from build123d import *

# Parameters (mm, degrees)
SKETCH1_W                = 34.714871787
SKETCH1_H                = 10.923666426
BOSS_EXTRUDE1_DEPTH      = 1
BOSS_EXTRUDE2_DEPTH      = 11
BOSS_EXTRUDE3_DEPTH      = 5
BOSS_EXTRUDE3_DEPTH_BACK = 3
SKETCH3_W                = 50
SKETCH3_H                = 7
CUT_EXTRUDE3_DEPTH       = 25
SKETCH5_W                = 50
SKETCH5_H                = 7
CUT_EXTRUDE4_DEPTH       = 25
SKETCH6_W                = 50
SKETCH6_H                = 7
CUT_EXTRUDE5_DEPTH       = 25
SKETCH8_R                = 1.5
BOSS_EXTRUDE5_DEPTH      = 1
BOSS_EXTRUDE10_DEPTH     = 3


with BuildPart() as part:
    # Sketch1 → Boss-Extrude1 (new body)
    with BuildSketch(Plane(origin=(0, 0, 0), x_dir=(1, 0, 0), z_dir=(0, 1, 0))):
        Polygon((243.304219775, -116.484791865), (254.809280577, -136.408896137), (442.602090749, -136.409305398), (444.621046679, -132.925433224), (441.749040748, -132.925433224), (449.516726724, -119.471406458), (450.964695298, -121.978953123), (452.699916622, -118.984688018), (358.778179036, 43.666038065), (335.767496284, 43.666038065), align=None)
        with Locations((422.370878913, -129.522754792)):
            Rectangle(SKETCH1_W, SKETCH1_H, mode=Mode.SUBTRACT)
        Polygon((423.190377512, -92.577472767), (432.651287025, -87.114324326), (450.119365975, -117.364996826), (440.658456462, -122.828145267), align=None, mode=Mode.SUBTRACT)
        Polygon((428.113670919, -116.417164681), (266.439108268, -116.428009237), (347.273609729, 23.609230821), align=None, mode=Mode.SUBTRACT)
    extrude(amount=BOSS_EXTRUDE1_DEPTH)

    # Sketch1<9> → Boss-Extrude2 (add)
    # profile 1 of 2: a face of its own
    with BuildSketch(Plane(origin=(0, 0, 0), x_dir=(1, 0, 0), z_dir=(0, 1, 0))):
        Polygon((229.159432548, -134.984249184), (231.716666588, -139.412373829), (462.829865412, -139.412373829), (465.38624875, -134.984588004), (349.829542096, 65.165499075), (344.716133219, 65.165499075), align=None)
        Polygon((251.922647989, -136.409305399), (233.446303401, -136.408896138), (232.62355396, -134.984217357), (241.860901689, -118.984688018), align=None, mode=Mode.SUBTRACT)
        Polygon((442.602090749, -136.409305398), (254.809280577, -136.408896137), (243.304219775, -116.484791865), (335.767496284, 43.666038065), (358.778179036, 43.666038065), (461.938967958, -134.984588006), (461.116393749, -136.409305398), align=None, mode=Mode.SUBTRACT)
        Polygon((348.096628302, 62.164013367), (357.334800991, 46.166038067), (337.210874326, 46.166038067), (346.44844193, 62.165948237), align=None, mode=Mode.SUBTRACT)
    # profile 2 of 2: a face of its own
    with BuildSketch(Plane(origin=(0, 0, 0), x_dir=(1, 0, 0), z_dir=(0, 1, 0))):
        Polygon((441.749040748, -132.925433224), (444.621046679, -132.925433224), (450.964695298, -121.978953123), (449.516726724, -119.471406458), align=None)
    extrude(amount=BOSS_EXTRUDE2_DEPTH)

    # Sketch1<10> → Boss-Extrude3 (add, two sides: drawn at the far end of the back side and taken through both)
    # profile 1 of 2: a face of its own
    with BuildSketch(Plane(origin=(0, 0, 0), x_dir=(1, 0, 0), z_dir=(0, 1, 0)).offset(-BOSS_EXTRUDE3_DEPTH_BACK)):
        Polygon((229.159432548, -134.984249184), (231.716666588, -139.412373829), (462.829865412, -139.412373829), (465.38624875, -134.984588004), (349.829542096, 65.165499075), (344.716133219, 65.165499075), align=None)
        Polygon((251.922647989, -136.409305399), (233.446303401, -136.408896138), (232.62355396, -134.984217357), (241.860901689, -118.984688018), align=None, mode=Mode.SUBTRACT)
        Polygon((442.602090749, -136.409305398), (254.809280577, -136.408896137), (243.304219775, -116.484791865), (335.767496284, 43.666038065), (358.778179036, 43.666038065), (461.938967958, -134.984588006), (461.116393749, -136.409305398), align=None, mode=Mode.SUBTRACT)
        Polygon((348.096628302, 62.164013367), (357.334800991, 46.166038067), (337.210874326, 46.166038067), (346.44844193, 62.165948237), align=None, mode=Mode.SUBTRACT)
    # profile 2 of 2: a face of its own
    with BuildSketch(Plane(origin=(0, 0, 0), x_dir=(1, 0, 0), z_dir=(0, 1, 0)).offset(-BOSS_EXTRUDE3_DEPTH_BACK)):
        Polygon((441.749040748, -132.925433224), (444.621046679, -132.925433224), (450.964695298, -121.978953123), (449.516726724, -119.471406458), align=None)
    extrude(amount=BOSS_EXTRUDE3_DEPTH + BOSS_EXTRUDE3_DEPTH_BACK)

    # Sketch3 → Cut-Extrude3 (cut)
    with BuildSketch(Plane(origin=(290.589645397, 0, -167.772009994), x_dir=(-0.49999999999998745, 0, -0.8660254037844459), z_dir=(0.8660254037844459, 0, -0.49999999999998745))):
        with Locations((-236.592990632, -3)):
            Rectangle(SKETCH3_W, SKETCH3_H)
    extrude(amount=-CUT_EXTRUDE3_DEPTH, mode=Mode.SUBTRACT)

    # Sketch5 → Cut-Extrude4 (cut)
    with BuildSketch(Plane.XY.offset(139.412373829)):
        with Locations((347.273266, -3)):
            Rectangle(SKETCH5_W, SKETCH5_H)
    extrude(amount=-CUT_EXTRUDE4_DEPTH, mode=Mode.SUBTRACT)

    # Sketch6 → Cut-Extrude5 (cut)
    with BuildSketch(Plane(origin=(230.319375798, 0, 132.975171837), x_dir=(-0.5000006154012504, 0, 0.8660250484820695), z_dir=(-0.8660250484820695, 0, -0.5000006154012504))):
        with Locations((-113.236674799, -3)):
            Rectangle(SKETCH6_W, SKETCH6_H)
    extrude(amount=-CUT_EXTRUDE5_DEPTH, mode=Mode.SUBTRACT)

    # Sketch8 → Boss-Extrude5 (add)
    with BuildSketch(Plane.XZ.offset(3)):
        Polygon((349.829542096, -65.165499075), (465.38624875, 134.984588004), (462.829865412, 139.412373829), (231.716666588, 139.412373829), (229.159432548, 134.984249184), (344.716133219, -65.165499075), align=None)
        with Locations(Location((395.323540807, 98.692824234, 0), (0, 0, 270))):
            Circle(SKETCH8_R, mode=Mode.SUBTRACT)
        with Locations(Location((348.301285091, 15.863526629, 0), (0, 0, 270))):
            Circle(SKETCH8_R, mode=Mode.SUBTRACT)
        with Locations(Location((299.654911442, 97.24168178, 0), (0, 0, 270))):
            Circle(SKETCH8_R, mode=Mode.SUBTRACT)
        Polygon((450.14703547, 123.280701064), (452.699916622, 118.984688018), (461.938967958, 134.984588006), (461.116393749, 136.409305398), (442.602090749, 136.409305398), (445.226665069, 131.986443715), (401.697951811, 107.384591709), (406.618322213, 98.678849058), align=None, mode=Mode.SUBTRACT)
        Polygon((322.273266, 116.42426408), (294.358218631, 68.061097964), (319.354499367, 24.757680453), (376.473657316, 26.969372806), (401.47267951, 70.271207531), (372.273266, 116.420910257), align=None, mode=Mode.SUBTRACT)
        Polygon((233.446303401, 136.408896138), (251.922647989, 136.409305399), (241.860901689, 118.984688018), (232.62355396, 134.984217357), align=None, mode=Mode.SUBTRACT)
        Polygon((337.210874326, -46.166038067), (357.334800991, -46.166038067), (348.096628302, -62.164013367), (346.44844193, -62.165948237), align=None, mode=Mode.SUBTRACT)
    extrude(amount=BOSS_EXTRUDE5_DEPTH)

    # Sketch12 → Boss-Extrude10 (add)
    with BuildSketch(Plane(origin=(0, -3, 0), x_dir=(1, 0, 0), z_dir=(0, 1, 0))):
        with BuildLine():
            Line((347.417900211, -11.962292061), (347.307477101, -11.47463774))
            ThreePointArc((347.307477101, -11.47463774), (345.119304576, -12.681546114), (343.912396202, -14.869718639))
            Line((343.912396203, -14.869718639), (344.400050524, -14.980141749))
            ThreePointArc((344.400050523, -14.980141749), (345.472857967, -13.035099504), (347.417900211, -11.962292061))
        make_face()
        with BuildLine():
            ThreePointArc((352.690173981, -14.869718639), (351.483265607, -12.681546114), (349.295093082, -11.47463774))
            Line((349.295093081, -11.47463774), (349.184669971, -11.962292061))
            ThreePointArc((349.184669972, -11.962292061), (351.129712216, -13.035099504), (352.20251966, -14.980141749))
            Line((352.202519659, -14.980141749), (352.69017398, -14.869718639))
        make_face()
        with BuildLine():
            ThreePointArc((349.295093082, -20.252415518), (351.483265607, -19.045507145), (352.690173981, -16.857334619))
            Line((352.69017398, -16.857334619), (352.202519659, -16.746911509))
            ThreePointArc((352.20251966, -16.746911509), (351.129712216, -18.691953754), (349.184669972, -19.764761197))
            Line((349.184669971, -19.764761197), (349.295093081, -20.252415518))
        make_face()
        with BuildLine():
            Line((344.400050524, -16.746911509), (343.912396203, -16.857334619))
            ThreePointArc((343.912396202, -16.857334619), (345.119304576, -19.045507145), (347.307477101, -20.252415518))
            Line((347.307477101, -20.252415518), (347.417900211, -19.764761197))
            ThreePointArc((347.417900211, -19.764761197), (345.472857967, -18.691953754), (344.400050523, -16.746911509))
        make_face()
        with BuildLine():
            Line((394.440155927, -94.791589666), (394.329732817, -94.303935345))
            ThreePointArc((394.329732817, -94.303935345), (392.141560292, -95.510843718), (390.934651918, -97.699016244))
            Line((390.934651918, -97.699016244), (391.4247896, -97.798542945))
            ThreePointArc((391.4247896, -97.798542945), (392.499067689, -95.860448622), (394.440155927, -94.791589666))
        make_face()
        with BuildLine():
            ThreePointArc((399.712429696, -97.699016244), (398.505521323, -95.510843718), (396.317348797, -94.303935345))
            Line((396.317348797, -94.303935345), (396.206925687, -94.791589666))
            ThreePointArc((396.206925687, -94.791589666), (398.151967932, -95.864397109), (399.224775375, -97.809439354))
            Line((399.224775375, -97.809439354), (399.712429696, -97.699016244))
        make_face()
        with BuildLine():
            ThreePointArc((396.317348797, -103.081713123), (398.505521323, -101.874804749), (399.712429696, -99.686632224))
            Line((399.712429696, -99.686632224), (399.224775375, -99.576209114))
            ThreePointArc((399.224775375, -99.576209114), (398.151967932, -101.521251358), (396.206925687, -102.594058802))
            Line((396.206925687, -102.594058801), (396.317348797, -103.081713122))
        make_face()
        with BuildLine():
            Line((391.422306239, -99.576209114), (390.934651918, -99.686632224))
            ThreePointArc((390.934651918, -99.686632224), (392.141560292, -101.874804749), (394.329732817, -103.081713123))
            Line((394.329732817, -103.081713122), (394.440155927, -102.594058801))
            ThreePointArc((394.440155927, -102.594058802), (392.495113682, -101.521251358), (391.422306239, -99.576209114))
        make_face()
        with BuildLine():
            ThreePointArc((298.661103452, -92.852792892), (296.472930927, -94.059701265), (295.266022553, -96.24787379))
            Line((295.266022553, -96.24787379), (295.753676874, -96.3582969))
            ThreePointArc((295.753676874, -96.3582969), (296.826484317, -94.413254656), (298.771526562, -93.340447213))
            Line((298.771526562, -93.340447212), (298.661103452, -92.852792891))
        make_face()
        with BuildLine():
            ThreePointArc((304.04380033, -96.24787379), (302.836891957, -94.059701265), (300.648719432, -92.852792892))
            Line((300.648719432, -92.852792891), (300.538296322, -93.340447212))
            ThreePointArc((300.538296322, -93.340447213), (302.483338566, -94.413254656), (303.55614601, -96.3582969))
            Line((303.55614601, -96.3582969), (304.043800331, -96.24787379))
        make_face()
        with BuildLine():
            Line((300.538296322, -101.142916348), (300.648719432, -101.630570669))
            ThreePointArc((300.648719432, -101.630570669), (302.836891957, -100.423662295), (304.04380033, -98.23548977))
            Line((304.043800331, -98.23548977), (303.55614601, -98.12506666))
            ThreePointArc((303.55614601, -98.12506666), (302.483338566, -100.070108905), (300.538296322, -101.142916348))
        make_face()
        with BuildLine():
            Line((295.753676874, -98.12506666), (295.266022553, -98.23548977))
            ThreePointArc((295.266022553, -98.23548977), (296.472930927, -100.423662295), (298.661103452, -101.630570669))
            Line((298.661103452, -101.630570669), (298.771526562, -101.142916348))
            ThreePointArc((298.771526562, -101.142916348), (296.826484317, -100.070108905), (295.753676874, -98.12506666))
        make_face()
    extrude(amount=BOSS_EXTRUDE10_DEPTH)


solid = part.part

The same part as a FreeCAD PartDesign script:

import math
import FreeCAD as App
import Part
import Sketcher

V = App.Vector


def add_polygon(sketch, points):
    """Adds a closed chain of lines whose ends are joined by coincident constraints."""
    first, n = sketch.GeometryCount, len(points)
    for a, b in zip(points, points[1:] + points[:1]):
        sketch.addGeometry(Part.LineSegment(App.Vector(*a, 0), App.Vector(*b, 0)), False)
    for i in range(n):
        sketch.addConstraint(Sketcher.Constraint("Coincident", first + i, 2, first + (i + 1) % n, 1))

doc = App.newDocument("Part")
body = doc.addObject("PartDesign::Body", "Body")

sketch1 = body.newObject("Sketcher::SketchObject", "Sketch")
sketch1.AttachmentSupport = (doc.getObject("XZ_Plane"), [""])
sketch1.MapMode = "FlatFace"
add_polygon(sketch1, [(243.30422, 116.484792), (254.809281, 136.408896), (442.602091, 136.409305), (444.621047, 132.925433), (441.749041, 132.925433), (449.516727, 119.471406), (450.964695, 121.978953), (452.699917, 118.984688), (358.778179, -43.666038), (335.767496, -43.666038)])
add_polygon(sketch1, [(439.728315, 134.984588), (405.013443, 134.984588), (405.013443, 124.060922), (439.728315, 124.060922)])
add_polygon(sketch1, [(440.658456, 122.828145), (423.190378, 92.577473), (432.651287, 87.114324), (450.119366, 117.364997)])
add_polygon(sketch1, [(347.27361, -23.609231), (428.113671, 116.417165), (266.439108, 116.428009)])
sketch1.addConstraint(Sketcher.Constraint("Horizontal", 3))
sketch1.addConstraint(Sketcher.Constraint("Horizontal", 8))
sketch1.addConstraint(Sketcher.Constraint("Horizontal", 10))
sketch1.addConstraint(Sketcher.Constraint("Vertical", 11))
sketch1.addConstraint(Sketcher.Constraint("Horizontal", 12))
sketch1.addConstraint(Sketcher.Constraint("Vertical", 13))
sketch1.addConstraint(Sketcher.Constraint("DistanceX", 10, 2, 10, 1, 34.714872))
sketch1.addConstraint(Sketcher.Constraint("DistanceY", 4, 2, 1, 2, 16.937899))
sketch1.addConstraint(Sketcher.Constraint("DistanceX", 8, 2, 5, 2, 115.197199))
sketch1.addConstraint(Sketcher.Constraint("Distance", 0, 23.007311))
sketch1.addConstraint(Sketcher.Constraint("Distance", 1, 187.79281))
sketch1.addConstraint(Sketcher.Constraint("Distance", 4, 15.535372))
sketch1.addConstraint(Sketcher.Constraint("Distance", 7, 187.82053))
sketch1.addConstraint(Sketcher.Constraint("Distance", 14, 34.93189))
sketch1.addConstraint(Sketcher.Constraint("Distance", 16, 34.93189))
sketch1.addConstraint(Sketcher.Constraint("Distance", 20, 161.693059))
sketch1.addConstraint(Sketcher.Constraint("DistanceX", 3, 2, 3, 1, 2.872006))
sketch1.addConstraint(Sketcher.Constraint("DistanceX", 8, 2, 8, 1, 23.010683))
sketch1.addConstraint(Sketcher.Constraint("DistanceY", 11, 2, 11, 1, 10.923666))
sketch1.addConstraint(Sketcher.Constraint("DistanceX", -1, 1, 0, 2, 254.809281))
sketch1.addConstraint(Sketcher.Constraint("DistanceX", -1, 1, 3, 2, 441.749041))
sketch1.addConstraint(Sketcher.Constraint("DistanceY", -1, 1, 6, 2, 118.984688))
sketch1.addConstraint(Sketcher.Constraint("DistanceX", -1, 1, 7, 2, 358.778179))
sketch1.addConstraint(Sketcher.Constraint("DistanceY", 7, 2, -1, 1, 43.666038))
sketch1.addConstraint(Sketcher.Constraint("DistanceX", -1, 1, 9, 2, 243.30422))
sketch1.addConstraint(Sketcher.Constraint("DistanceY", -1, 1, 9, 2, 116.484792))
sketch1.addConstraint(Sketcher.Constraint("DistanceY", -1, 1, 10, 2, 134.984588))
sketch1.addConstraint(Sketcher.Constraint("DistanceX", -1, 1, 18, 2, 428.113671))
sketch1.addConstraint(Sketcher.Constraint("DistanceX", -1, 1, 19, 2, 266.439108))
sketch1.addConstraint(Sketcher.Constraint("DistanceY", -1, 1, 19, 2, 116.428009))
sketch1.addConstraint(Sketcher.Constraint("DistanceX", -1, 1, 20, 2, 347.27361))
sketch1.addConstraint(Sketcher.Constraint("DistanceY", 0, 2, 1, 2, 0.000409))
sketch1.addConstraint(Sketcher.Constraint("DistanceX", 2, 2, 4, 2, 4.89568))
sketch1.addConstraint(Sketcher.Constraint("DistanceY", 5, 2, 2, 2, 10.94648))
sketch1.addConstraint(Sketcher.Constraint("DistanceX", 12, 2, 2, 2, 4.892732))
sketch1.addConstraint(Sketcher.Constraint("DistanceY", 14, 2, 12, 2, 31.483449))
sketch1.addConstraint(Sketcher.Constraint("DistanceX", 14, 2, 4, 2, 26.326349))
sketch1.addConstraint(Sketcher.Constraint("DistanceX", 14, 2, 15, 2, 9.46091))
sketch1.addConstraint(Sketcher.Constraint("DistanceY", 15, 2, 14, 2, 5.463148))
sketch1.addConstraint(Sketcher.Constraint("DistanceX", 4, 2, 16, 2, 0.602639))
sketch1.addConstraint(Sketcher.Constraint("DistanceX", 12, 2, 17, 2, 0.930142))
sketch1.addConstraint(Sketcher.Constraint("DistanceY", 18, 2, 17, 2, 6.410981))
pad1 = body.newObject("PartDesign::Pad", "Pad")
pad1.Profile = sketch1
pad1.Length = 1
pad1.Reversed = True

sketch2 = body.newObject("Sketcher::SketchObject", "Sketch001")
sketch2.AttachmentSupport = (doc.getObject("XZ_Plane"), [""])
sketch2.MapMode = "FlatFace"
add_polygon(sketch2, [(229.159433, 134.984249), (231.716667, 139.412374), (462.829865, 139.412374), (465.386249, 134.984588), (349.829542, -65.165499), (344.716133, -65.165499)])
add_polygon(sketch2, [(241.860902, 118.984688), (251.922648, 136.409305), (233.446303, 136.408896), (232.623554, 134.984217)])
add_polygon(sketch2, [(461.116394, 136.409305), (442.602091, 136.409305), (254.809281, 136.408896), (243.30422, 116.484792), (335.767496, -43.666038), (358.778179, -43.666038), (461.938968, 134.984588)])
add_polygon(sketch2, [(346.448442, -62.165948), (348.096628, -62.164013), (357.334801, -46.166038), (337.210874, -46.166038)])
add_polygon(sketch2, [(441.749041, 132.925433), (444.621047, 132.925433), (450.964695, 121.978953), (449.516727, 119.471406)])
sketch2.addConstraint(Sketcher.Constraint("Horizontal", 1))
sketch2.addConstraint(Sketcher.Constraint("Horizontal", 4))
sketch2.addConstraint(Sketcher.Constraint("Horizontal", 10))
sketch2.addConstraint(Sketcher.Constraint("Horizontal", 14))
sketch2.addConstraint(Sketcher.Constraint("Horizontal", 19))
sketch2.addConstraint(Sketcher.Constraint("Horizontal", 21))
sketch2.addConstraint(Sketcher.Constraint("DistanceY", 18, 2, 14, 2, 2.5))
sketch2.addConstraint(Sketcher.Constraint("DistanceX", 1, 1, 1, 2, 231.113199))
sketch2.addConstraint(Sketcher.Constraint("DistanceX", 4, 2, 4, 1, 5.113409))
sketch2.addConstraint(Sketcher.Constraint("DistanceY", 3, 2, -1, 1, 65.165499))
sketch2.addConstraint(Sketcher.Constraint("DistanceX", -1, 1, 9, 2, 241.860902))
sketch2.addConstraint(Sketcher.Constraint("DistanceX", -1, 1, 18, 2, 357.334801))
sketch2.addConstraint(Sketcher.Constraint("DistanceX", 5, 2, 4, 2, 115.556701))
sketch2.addConstraint(Sketcher.Constraint("DistanceX", 6, 2, 2, 2, 213.463601))
sketch2.addConstraint(Sketcher.Constraint("DistanceX", 7, 2, 9, 2, 8.414598))
sketch2.addConstraint(Sketcher.Constraint("DistanceX", 20, 2, 3, 2, 3.3811))
sketch2.addConstraint(Sketcher.Constraint("DistanceX", 22, 2, 16, 2, 10.151698))
sketch2.addConstraint(Sketcher.Constraint("DistanceY", 23, 2, 10, 2, 16.937899))
sketch2.addConstraint(Sketcher.Constraint("Distance", 11, 187.79281))
sketch2.addConstraint(Sketcher.Constraint("Distance", 12, 23.007311))
sketch2.addConstraint(Sketcher.Constraint("Distance", 16, 1.645129))
sketch2.addConstraint(Sketcher.Constraint("Distance", 18, 18.473739))
sketch2.addConstraint(Sketcher.Constraint("Distance", 22, 12.651771))
sketch2.addConstraint(Sketcher.Constraint("Distance", 24, 15.535372))
sketch2.addConstraint(Sketcher.Constraint("DistanceX", 10, 2, 10, 1, 18.514303))
sketch2.addConstraint(Sketcher.Constraint("DistanceX", 14, 1, 14, 2, 23.010683))
sketch2.addConstraint(Sketcher.Constraint("DistanceX", 19, 2, 19, 1, 20.123927))
sketch2.addConstraint(Sketcher.Constraint("DistanceX", 21, 1, 21, 2, 2.872006))
sketch2.addConstraint(Sketcher.Constraint("DistanceX", -1, 1, 2, 2, 465.386249))
sketch2.addConstraint(Sketcher.Constraint("DistanceY", -1, 1, 2, 2, 134.984588))
sketch2.addConstraint(Sketcher.Constraint("DistanceY", -1, 1, 5, 2, 134.984249))
sketch2.addConstraint(Sketcher.Constraint("DistanceY", -1, 1, 9, 2, 118.984688))
sketch2.addConstraint(Sketcher.Constraint("DistanceX", -1, 1, 10, 2, 442.602091))
sketch2.addConstraint(Sketcher.Constraint("DistanceX", -1, 1, 12, 2, 243.30422))
sketch2.addConstraint(Sketcher.Constraint("DistanceY", -1, 1, 12, 2, 116.484792))
sketch2.addConstraint(Sketcher.Constraint("DistanceY", 13, 2, -1, 1, 43.666038))
sketch2.addConstraint(Sketcher.Constraint("DistanceX", -1, 1, 14, 2, 358.778179))
sketch2.addConstraint(Sketcher.Constraint("DistanceY", -1, 1, 15, 2, 134.984588))
sketch2.addConstraint(Sketcher.Constraint("DistanceX", -1, 1, 17, 2, 348.096628))
sketch2.addConstraint(Sketcher.Constraint("DistanceX", -1, 1, 20, 2, 346.448442))
sketch2.addConstraint(Sketcher.Constraint("DistanceY", 20, 2, -1, 1, 62.165948))
sketch2.addConstraint(Sketcher.Constraint("DistanceX", -1, 1, 24, 2, 441.749041))
sketch2.addConstraint(Sketcher.Constraint("DistanceX", 0, 2, 6, 2, 20.205981))
sketch2.addConstraint(Sketcher.Constraint("DistanceY", 6, 2, 0, 2, 3.003068))
sketch2.addConstraint(Sketcher.Constraint("DistanceY", 7, 2, 6, 2, 0.000409))
sketch2.addConstraint(Sketcher.Constraint("DistanceX", 8, 2, 7, 2, 0.822749))
sketch2.addConstraint(Sketcher.Constraint("DistanceY", 8, 2, 7, 2, 1.424679))
sketch2.addConstraint(Sketcher.Constraint("DistanceY", 9, 2, 8, 2, 15.999529))
sketch2.addConstraint(Sketcher.Constraint("DistanceY", 10, 2, 1, 2, 3.003068))
sketch2.addConstraint(Sketcher.Constraint("DistanceY", 21, 2, 1, 2, 6.486941))
pad2 = body.newObject("PartDesign::Pad", "Pad001")
pad2.Profile = sketch2
pad2.Length = 11
pad2.Reversed = True

sketch3 = body.newObject("Sketcher::SketchObject", "Sketch002")
sketch3.AttachmentSupport = (doc.getObject("XZ_Plane"), [""])
sketch3.MapMode = "FlatFace"
add_polygon(sketch3, [(229.159433, 134.984249), (231.716667, 139.412374), (462.829865, 139.412374), (465.386249, 134.984588), (349.829542, -65.165499), (344.716133, -65.165499)])
add_polygon(sketch3, [(241.860902, 118.984688), (251.922648, 136.409305), (233.446303, 136.408896), (232.623554, 134.984217)])
add_polygon(sketch3, [(461.116394, 136.409305), (442.602091, 136.409305), (254.809281, 136.408896), (243.30422, 116.484792), (335.767496, -43.666038), (358.778179, -43.666038), (461.938968, 134.984588)])
add_polygon(sketch3, [(346.448442, -62.165948), (348.096628, -62.164013), (357.334801, -46.166038), (337.210874, -46.166038)])
add_polygon(sketch3, [(441.749041, 132.925433), (444.621047, 132.925433), (450.964695, 121.978953), (449.516727, 119.471406)])
sketch3.addConstraint(Sketcher.Constraint("Horizontal", 1))
sketch3.addConstraint(Sketcher.Constraint("Horizontal", 4))
sketch3.addConstraint(Sketcher.Constraint("Horizontal", 10))
sketch3.addConstraint(Sketcher.Constraint("Horizontal", 14))
sketch3.addConstraint(Sketcher.Constraint("Horizontal", 19))
sketch3.addConstraint(Sketcher.Constraint("Horizontal", 21))
sketch3.addConstraint(Sketcher.Constraint("DistanceY", 18, 2, 14, 2, 2.5))
sketch3.addConstraint(Sketcher.Constraint("DistanceX", 1, 1, 1, 2, 231.113199))
sketch3.addConstraint(Sketcher.Constraint("DistanceX", 4, 2, 4, 1, 5.113409))
sketch3.addConstraint(Sketcher.Constraint("DistanceY", 3, 2, -1, 1, 65.165499))
sketch3.addConstraint(Sketcher.Constraint("DistanceX", -1, 1, 9, 2, 241.860902))
sketch3.addConstraint(Sketcher.Constraint("DistanceX", -1, 1, 18, 2, 357.334801))
sketch3.addConstraint(Sketcher.Constraint("DistanceX", 5, 2, 4, 2, 115.556701))
sketch3.addConstraint(Sketcher.Constraint("DistanceX", 6, 2, 2, 2, 213.463601))
sketch3.addConstraint(Sketcher.Constraint("DistanceX", 7, 2, 9, 2, 8.414598))
sketch3.addConstraint(Sketcher.Constraint("DistanceX", 20, 2, 3, 2, 3.3811))
sketch3.addConstraint(Sketcher.Constraint("DistanceX", 22, 2, 16, 2, 10.151698))
sketch3.addConstraint(Sketcher.Constraint("DistanceY", 23, 2, 10, 2, 16.937899))
sketch3.addConstraint(Sketcher.Constraint("Distance", 11, 187.79281))
sketch3.addConstraint(Sketcher.Constraint("Distance", 12, 23.007311))
sketch3.addConstraint(Sketcher.Constraint("Distance", 16, 1.645129))
sketch3.addConstraint(Sketcher.Constraint("Distance", 18, 18.473739))
sketch3.addConstraint(Sketcher.Constraint("Distance", 22, 12.651771))
sketch3.addConstraint(Sketcher.Constraint("Distance", 24, 15.535372))
sketch3.addConstraint(Sketcher.Constraint("DistanceX", 10, 2, 10, 1, 18.514303))
sketch3.addConstraint(Sketcher.Constraint("DistanceX", 14, 1, 14, 2, 23.010683))
sketch3.addConstraint(Sketcher.Constraint("DistanceX", 19, 2, 19, 1, 20.123927))
sketch3.addConstraint(Sketcher.Constraint("DistanceX", 21, 1, 21, 2, 2.872006))
sketch3.addConstraint(Sketcher.Constraint("DistanceX", -1, 1, 2, 2, 465.386249))
sketch3.addConstraint(Sketcher.Constraint("DistanceY", -1, 1, 2, 2, 134.984588))
sketch3.addConstraint(Sketcher.Constraint("DistanceY", -1, 1, 5, 2, 134.984249))
sketch3.addConstraint(Sketcher.Constraint("DistanceY", -1, 1, 9, 2, 118.984688))
sketch3.addConstraint(Sketcher.Constraint("DistanceX", -1, 1, 10, 2, 442.602091))
sketch3.addConstraint(Sketcher.Constraint("DistanceX", -1, 1, 12, 2, 243.30422))
sketch3.addConstraint(Sketcher.Constraint("DistanceY", -1, 1, 12, 2, 116.484792))
sketch3.addConstraint(Sketcher.Constraint("DistanceY", 13, 2, -1, 1, 43.666038))
sketch3.addConstraint(Sketcher.Constraint("DistanceX", -1, 1, 14, 2, 358.778179))
sketch3.addConstraint(Sketcher.Constraint("DistanceY", -1, 1, 15, 2, 134.984588))
sketch3.addConstraint(Sketcher.Constraint("DistanceX", -1, 1, 17, 2, 348.096628))
sketch3.addConstraint(Sketcher.Constraint("DistanceX", -1, 1, 20, 2, 346.448442))
sketch3.addConstraint(Sketcher.Constraint("DistanceY", 20, 2, -1, 1, 62.165948))
sketch3.addConstraint(Sketcher.Constraint("DistanceX", -1, 1, 24, 2, 441.749041))
sketch3.addConstraint(Sketcher.Constraint("DistanceX", 0, 2, 6, 2, 20.205981))
sketch3.addConstraint(Sketcher.Constraint("DistanceY", 6, 2, 0, 2, 3.003068))
sketch3.addConstraint(Sketcher.Constraint("DistanceY", 7, 2, 6, 2, 0.000409))
sketch3.addConstraint(Sketcher.Constraint("DistanceX", 8, 2, 7, 2, 0.822749))
sketch3.addConstraint(Sketcher.Constraint("DistanceY", 8, 2, 7, 2, 1.424679))
sketch3.addConstraint(Sketcher.Constraint("DistanceY", 9, 2, 8, 2, 15.999529))
sketch3.addConstraint(Sketcher.Constraint("DistanceY", 10, 2, 1, 2, 3.003068))
sketch3.addConstraint(Sketcher.Constraint("DistanceY", 21, 2, 1, 2, 6.486941))
pad3 = body.newObject("PartDesign::Pad", "Pad002")
pad3.Profile = sketch3
pad3.Type = "TwoLengths"
pad3.Length = 5
pad3.Length2 = 3
pad3.Reversed = True

sketch4 = body.newObject("Sketcher::SketchObject", "Sketch003")
sketch4.Placement = App.Placement(V(290.589645, 0, -167.77201), App.Rotation(V(-0.5, 0, -0.866025404), V(0, 1, 0), V(0.866025404, 0, -0.5), "ZXY"))
add_polygon(sketch4, [(-262, 0), (-262, -7), (-212, -7), (-212, 0)])
sketch4.addConstraint(Sketcher.Constraint("Vertical", 0))
sketch4.addConstraint(Sketcher.Constraint("Horizontal", 1))
sketch4.addConstraint(Sketcher.Constraint("Vertical", 2))
sketch4.addConstraint(Sketcher.Constraint("Horizontal", 3))
sketch4.addConstraint(Sketcher.Constraint("DistanceX", 1, 1, 1, 2, 50.0))
sketch4.addConstraint(Sketcher.Constraint("DistanceY", 0, 2, 0, 1, 7.0))
sketch4.addConstraint(Sketcher.Constraint("DistanceY", 0, 2, -1, 1, 6.5))
sketch4.addConstraint(Sketcher.Constraint("DistanceX", 0, 2, -1, 1, 261.592991))
pocket1 = body.newObject("PartDesign::Pocket", "Pocket")
pocket1.Profile = sketch4
pocket1.Length = 25

sketch5 = body.newObject("Sketcher::SketchObject", "Sketch004")
sketch5.AttachmentSupport = (doc.getObject("XY_Plane"), [""])
sketch5.MapMode = "FlatFace"
sketch5.AttachmentOffset = App.Placement(V(0, 0, 139.412374), App.Rotation())
add_polygon(sketch5, [(322, 0), (322, -6), (372, -6), (372, 0)])
sketch5.addConstraint(Sketcher.Constraint("Vertical", 0))
sketch5.addConstraint(Sketcher.Constraint("Horizontal", 1))
sketch5.addConstraint(Sketcher.Constraint("Vertical", 2))
sketch5.addConstraint(Sketcher.Constraint("Horizontal", 3))
sketch5.addConstraint(Sketcher.Constraint("DistanceX", 1, 1, 1, 2, 50.0))
sketch5.addConstraint(Sketcher.Constraint("DistanceY", 0, 2, 0, 1, 7.0))
sketch5.addConstraint(Sketcher.Constraint("DistanceY", 0, 2, -1, 1, 6.5))
sketch5.addConstraint(Sketcher.Constraint("DistanceX", -1, 1, 0, 2, 322.273266))
pocket2 = body.newObject("PartDesign::Pocket", "Pocket001")
pocket2.Profile = sketch5
pocket2.Length = 25

sketch6 = body.newObject("Sketcher::SketchObject", "Sketch005")
sketch6.Placement = App.Placement(V(230.319376, 0, 132.975172), App.Rotation(V(-0.500000615, 0, 0.866025048), V(0, 0.999999999, 0), V(-0.866025048, 0, -0.500000615), "ZXY"))
add_polygon(sketch6, [(-138, 0), (-138, -6), (-88, -6), (-88, 0)])
sketch6.addConstraint(Sketcher.Constraint("Vertical", 0))
sketch6.addConstraint(Sketcher.Constraint("Horizontal", 1))
sketch6.addConstraint(Sketcher.Constraint("Vertical", 2))
sketch6.addConstraint(Sketcher.Constraint("Horizontal", 3))
sketch6.addConstraint(Sketcher.Constraint("DistanceX", 1, 1, 1, 2, 50.0))
sketch6.addConstraint(Sketcher.Constraint("DistanceY", 0, 2, 0, 1, 7.0))
sketch6.addConstraint(Sketcher.Constraint("DistanceY", 0, 2, -1, 1, 6.5))
sketch6.addConstraint(Sketcher.Constraint("DistanceX", 0, 2, -1, 1, 138.236675))
pocket3 = body.newObject("PartDesign::Pocket", "Pocket002")
pocket3.Profile = sketch6
pocket3.Length = 25

sketch7 = body.newObject("Sketcher::SketchObject", "Sketch006")
sketch7.AttachmentSupport = (doc.getObject("XZ_Plane"), [""])
sketch7.MapMode = "FlatFace"
sketch7.AttachmentOffset = App.Placement(V(0, 0, 3), App.Rotation())
add_polygon(sketch7, [(349.829542, -65.165499), (465.386249, 134.984588), (462.829865, 139.412374), (231.716667, 139.412374), (229.159433, 134.984249), (344.716133, -65.165499)])
add_polygon(sketch7, [(346.448442, -62.165948), (337.210874, -46.166038), (357.334801, -46.166038), (348.096628, -62.164013)])
sketch7.addGeometry(Part.Circle(V(348.301285, 15.863527, 0), V(0, 0, 1), 1.5), False)
add_polygon(sketch7, [(232.623554, 134.984217), (233.446303, 136.408896), (251.922648, 136.409305), (241.860902, 118.984688)])
sketch7.addGeometry(Part.Circle(V(299.654911, 97.241682, 0), V(0, 0, 1), 1.5), False)
add_polygon(sketch7, [(294.358219, 68.061098), (322.273266, 116.424264), (372.273266, 116.42091), (401.47268, 70.271208), (376.473657, 26.969373), (319.354499, 24.75768)])
sketch7.addGeometry(Part.Circle(V(395.323541, 98.692824, 0), V(0, 0, 1), 1.5), False)
add_polygon(sketch7, [(452.699917, 118.984688), (450.147035, 123.280701), (406.618322, 98.678849), (401.697952, 107.384592), (445.226665, 131.986444), (442.602091, 136.409305), (461.116394, 136.409305), (461.938968, 134.984588)])
sketch7.addConstraint(Sketcher.Constraint("Horizontal", 2))
sketch7.addConstraint(Sketcher.Constraint("Horizontal", 5))
sketch7.addConstraint(Sketcher.Constraint("Horizontal", 7))
sketch7.addConstraint(Sketcher.Constraint("Horizontal", 28))
sketch7.addConstraint(Sketcher.Constraint("Diameter", 10, 3.0))
sketch7.addConstraint(Sketcher.Constraint("Diameter", 15, 3.0))
sketch7.addConstraint(Sketcher.Constraint("Diameter", 22, 3.0))
sketch7.addConstraint(Sketcher.Constraint("Distance", 17, 50.0))
sketch7.addConstraint(Sketcher.Constraint("Distance", 19, 50.0))
sketch7.addConstraint(Sketcher.Constraint("Distance", 21, 50.0))
sketch7.addConstraint(Sketcher.Constraint("Distance", 24, 50.0))
sketch7.addConstraint(Sketcher.Constraint("Distance", 25, 10.0))
sketch7.addConstraint(Sketcher.Constraint("Distance", 26, 50.0))
sketch7.addConstraint(Sketcher.Constraint("DistanceX", 2, 2, 2, 1, 231.113199))
sketch7.addConstraint(Sketcher.Constraint("DistanceX", 5, 2, 22, 3, 45.493999))
sketch7.addConstraint(Sketcher.Constraint("DistanceY", 20, 2, 15, 3, 72.484001))
sketch7.addConstraint(Sketcher.Constraint("DistanceX", 5, 1, 5, 2, 5.113409))
sketch7.addConstraint(Sketcher.Constraint("DistanceY", 4, 2, -1, 1, 65.165499))
sketch7.addConstraint(Sketcher.Constraint("DistanceX", -1, 1, 7, 2, 357.334801))
sketch7.addConstraint(Sketcher.Constraint("DistanceX", -1, 1, 13, 2, 241.860902))
sketch7.addConstraint(Sketcher.Constraint("DistanceX", -1, 1, 20, 2, 319.354499))
sketch7.addConstraint(Sketcher.Constraint("DistanceY", -1, 1, 23, 2, 123.280701))
sketch7.addConstraint(Sketcher.Constraint("DistanceX", 3, 2, 4, 2, 115.556701))
sketch7.addConstraint(Sketcher.Constraint("DistanceX", 9, 2, 5, 2, 3.3811))
sketch7.addConstraint(Sketcher.Constraint("DistanceX", 11, 2, 13, 2, 8.414598))
sketch7.addConstraint(Sketcher.Constraint("DistanceX", 17, 2, 1, 2, 90.556599))
sketch7.addConstraint(Sketcher.Constraint("DistanceX", 26, 2, 1, 2, 17.6032))
sketch7.addConstraint(Sketcher.Constraint("DistanceY", 30, 2, 29, 2, 15.9999))
sketch7.addConstraint(Sketcher.Constraint("Distance", 8, 18.473739))
sketch7.addConstraint(Sketcher.Constraint("Distance", 18, 54.611362))
sketch7.addConstraint(Sketcher.Constraint("Distance", 20, 57.161961))
sketch7.addConstraint(Sketcher.Constraint("Distance", 29, 1.645129))
sketch7.addConstraint(Sketcher.Constraint("DistanceX", 7, 1, 7, 2, 20.123927))
sketch7.addConstraint(Sketcher.Constraint("DistanceX", 28, 1, 28, 2, 18.514303))
sketch7.addConstraint(Sketcher.Constraint("DistanceX", -1, 1, 15, 3, 299.654911))
sketch7.addConstraint(Sketcher.Constraint("DistanceY", -1, 1, 15, 3, 97.241682))
sketch7.addConstraint(Sketcher.Constraint("DistanceX", -1, 1, 22, 3, 395.323541))
sketch7.addConstraint(Sketcher.Constraint("DistanceX", -1, 1, 0, 2, 465.386249))
sketch7.addConstraint(Sketcher.Constraint("DistanceY", -1, 1, 0, 2, 134.984588))
sketch7.addConstraint(Sketcher.Constraint("DistanceY", -1, 1, 3, 2, 134.984249))
sketch7.addConstraint(Sketcher.Constraint("DistanceY", 6, 2, -1, 1, 46.166038))
sketch7.addConstraint(Sketcher.Constraint("DistanceX", -1, 1, 8, 2, 348.096628))
sketch7.addConstraint(Sketcher.Constraint("DistanceY", 9, 2, -1, 1, 62.165948))
sketch7.addConstraint(Sketcher.Constraint("DistanceY", -1, 1, 13, 2, 118.984688))
sketch7.addConstraint(Sketcher.Constraint("DistanceY", -1, 1, 17, 2, 116.42091))
sketch7.addConstraint(Sketcher.Constraint("DistanceX", -1, 1, 18, 2, 401.47268))
sketch7.addConstraint(Sketcher.Constraint("DistanceX", -1, 1, 21, 2, 294.358219))
sketch7.addConstraint(Sketcher.Constraint("DistanceY", -1, 1, 24, 2, 98.678849))
sketch7.addConstraint(Sketcher.Constraint("DistanceX", -1, 1, 25, 2, 401.697952))
sketch7.addConstraint(Sketcher.Constraint("DistanceY", -1, 1, 25, 2, 107.384592))
sketch7.addConstraint(Sketcher.Constraint("DistanceX", -1, 1, 27, 2, 442.602091))
sketch7.addConstraint(Sketcher.Constraint("DistanceY", -1, 1, 29, 2, 134.984588))
sketch7.addConstraint(Sketcher.Constraint("DistanceY", 10, 3, 0, 2, 119.121061))
sketch7.addConstraint(Sketcher.Constraint("DistanceY", 22, 3, 1, 2, 40.71955))
sketch7.addConstraint(Sketcher.Constraint("DistanceX", 10, 3, 1, 2, 114.52858))
sketch7.addConstraint(Sketcher.Constraint("DistanceX", 4, 2, 10, 3, 3.585152))
sketch7.addConstraint(Sketcher.Constraint("DistanceY", 22, 3, 11, 2, 37.716072))
sketch7.addConstraint(Sketcher.Constraint("DistanceY", 10, 3, 11, 2, 120.54537))
sketch7.addConstraint(Sketcher.Constraint("DistanceY", 11, 2, 12, 2, 0.000409))
sketch7.addConstraint(Sketcher.Constraint("DistanceX", 2, 2, 12, 2, 20.205981))
sketch7.addConstraint(Sketcher.Constraint("DistanceX", 14, 2, 11, 2, 0.822749))
sketch7.addConstraint(Sketcher.Constraint("DistanceY", 14, 2, 11, 2, 1.424679))
sketch7.addConstraint(Sketcher.Constraint("DistanceY", 16, 2, 12, 2, 19.985041))
sketch7.addConstraint(Sketcher.Constraint("DistanceY", 26, 2, 27, 2, 4.422862))
sketch7.addConstraint(Sketcher.Constraint("DistanceX", 23, 2, 30, 2, 2.552881))
pad4 = body.newObject("PartDesign::Pad", "Pad003")
pad4.Profile = sketch7
pad4.Length = 1

sketch8 = body.newObject("Sketcher::SketchObject", "Sketch007")
sketch8.AttachmentSupport = (doc.getObject("XZ_Plane"), [""])
sketch8.MapMode = "FlatFace"
sketch8.AttachmentOffset = App.Placement(V(0, 0, 3), App.Rotation())
sketch8.addGeometry(Part.LineSegment(V(347.4179, 11.962292, 0), V(347.307477, 11.474638, 0)), False)
sketch8.addGeometry(Part.ArcOfCircle(Part.Circle(V(348.301285, 15.863527, 0), V(0, 0, 1), 4.5), math.radians(-167.24126), math.radians(-102.75874)), False)
sketch8.addGeometry(Part.LineSegment(V(343.912396, 14.869719, 0), V(344.400051, 14.980142, 0)), False)
sketch8.addGeometry(Part.ArcOfCircle(Part.Circle(V(348.301285, 15.863527, 0), V(0, 0, 1), 4), math.radians(-167.24126), math.radians(-102.75874)), False)
sketch8.addGeometry(Part.ArcOfCircle(Part.Circle(V(348.301285, 15.863527, 0), V(0, 0, 1), 4.5), math.radians(-77.24126), math.radians(-12.75874)), False)
sketch8.addGeometry(Part.LineSegment(V(349.295093, 11.474638, 0), V(349.18467, 11.962292, 0)), False)
sketch8.addGeometry(Part.ArcOfCircle(Part.Circle(V(348.301285, 15.863527, 0), V(0, 0, 1), 4), math.radians(-77.24126), math.radians(-12.75874)), False)
sketch8.addGeometry(Part.LineSegment(V(352.20252, 14.980142, 0), V(352.690174, 14.869719, 0)), False)
sketch8.addGeometry(Part.ArcOfCircle(Part.Circle(V(348.301285, 15.863527, 0), V(0, 0, 1), 4.5), math.radians(12.75874), math.radians(77.24126)), False)
sketch8.addGeometry(Part.LineSegment(V(352.690174, 16.857335, 0), V(352.20252, 16.746912, 0)), False)
sketch8.addGeometry(Part.ArcOfCircle(Part.Circle(V(348.301285, 15.863527, 0), V(0, 0, 1), 4), math.radians(12.75874), math.radians(77.24126)), False)
sketch8.addGeometry(Part.LineSegment(V(349.18467, 19.764761, 0), V(349.295093, 20.252416, 0)), False)
sketch8.addGeometry(Part.LineSegment(V(344.400051, 16.746912, 0), V(343.912396, 16.857335, 0)), False)
sketch8.addGeometry(Part.ArcOfCircle(Part.Circle(V(348.301285, 15.863527, 0), V(0, 0, 1), 4.5), math.radians(102.75874), math.radians(167.24126)), False)
sketch8.addGeometry(Part.LineSegment(V(347.307477, 20.252416, 0), V(347.4179, 19.764761, 0)), False)
sketch8.addGeometry(Part.ArcOfCircle(Part.Circle(V(348.301285, 15.863527, 0), V(0, 0, 1), 4), math.radians(102.75874), math.radians(167.24126)), False)
sketch8.addGeometry(Part.LineSegment(V(394.440156, 94.79159, 0), V(394.329733, 94.303935, 0)), False)
sketch8.addGeometry(Part.ArcOfCircle(Part.Circle(V(395.323541, 98.692824, 0), V(0, 0, 1), 4.5), math.radians(-167.24126), math.radians(-102.75874)), False)
sketch8.addGeometry(Part.LineSegment(V(390.934652, 97.699016, 0), V(391.42479, 97.798543, 0)), False)
sketch8.addGeometry(Part.ArcOfCircle(Part.Circle(V(395.323541, 98.692824, 0), V(0, 0, 1), 4), math.radians(-167.081178), math.radians(-102.75874)), False)
sketch8.addGeometry(Part.ArcOfCircle(Part.Circle(V(395.323541, 98.692824, 0), V(0, 0, 1), 4.5), math.radians(-77.24126), math.radians(-12.75874)), False)
sketch8.addGeometry(Part.LineSegment(V(396.317349, 94.303935, 0), V(396.206926, 94.79159, 0)), False)
sketch8.addGeometry(Part.ArcOfCircle(Part.Circle(V(395.323541, 98.692824, 0), V(0, 0, 1), 4), math.radians(-77.24126), math.radians(-12.75874)), False)
sketch8.addGeometry(Part.LineSegment(V(399.224775, 97.809439, 0), V(399.71243, 97.699016, 0)), False)
sketch8.addGeometry(Part.ArcOfCircle(Part.Circle(V(395.323541, 98.692824, 0), V(0, 0, 1), 4.5), math.radians(12.75874), math.radians(77.24126)), False)
sketch8.addGeometry(Part.LineSegment(V(399.71243, 99.686632, 0), V(399.224775, 99.576209, 0)), False)
sketch8.addGeometry(Part.ArcOfCircle(Part.Circle(V(395.323541, 98.692824, 0), V(0, 0, 1), 4), math.radians(12.75874), math.radians(77.24126)), False)
sketch8.addGeometry(Part.LineSegment(V(396.206926, 102.594059, 0), V(396.317349, 103.081713, 0)), False)
sketch8.addGeometry(Part.LineSegment(V(391.422306, 99.576209, 0), V(390.934652, 99.686632, 0)), False)
sketch8.addGeometry(Part.ArcOfCircle(Part.Circle(V(395.323541, 98.692824, 0), V(0, 0, 1), 4.5), math.radians(102.75874), math.radians(167.24126)), False)
sketch8.addGeometry(Part.LineSegment(V(394.329733, 103.081713, 0), V(394.440156, 102.594059, 0)), False)
sketch8.addGeometry(Part.ArcOfCircle(Part.Circle(V(395.323541, 98.692824, 0), V(0, 0, 1), 4), math.radians(102.75874), math.radians(167.24126)), False)
sketch8.addGeometry(Part.ArcOfCircle(Part.Circle(V(299.654911, 97.241682, 0), V(0, 0, 1), 4.5), math.radians(-167.24126), math.radians(-102.75874)), False)
sketch8.addGeometry(Part.LineSegment(V(295.266023, 96.247874, 0), V(295.753677, 96.358297, 0)), False)
sketch8.addGeometry(Part.ArcOfCircle(Part.Circle(V(299.654911, 97.241682, 0), V(0, 0, 1), 4), math.radians(-167.24126), math.radians(-102.75874)), False)
sketch8.addGeometry(Part.LineSegment(V(298.771527, 93.340447, 0), V(298.661103, 92.852793, 0)), False)
sketch8.addGeometry(Part.ArcOfCircle(Part.Circle(V(299.654911, 97.241682, 0), V(0, 0, 1), 4.5), math.radians(-77.24126), math.radians(-12.75874)), False)
sketch8.addGeometry(Part.LineSegment(V(300.648719, 92.852793, 0), V(300.538296, 93.340447, 0)), False)
sketch8.addGeometry(Part.ArcOfCircle(Part.Circle(V(299.654911, 97.241682, 0), V(0, 0, 1), 4), math.radians(-77.24126), math.radians(-12.75874)), False)
sketch8.addGeometry(Part.LineSegment(V(303.556146, 96.358297, 0), V(304.0438, 96.247874, 0)), False)
sketch8.addGeometry(Part.LineSegment(V(300.538296, 101.142916, 0), V(300.648719, 101.630571, 0)), False)
sketch8.addGeometry(Part.ArcOfCircle(Part.Circle(V(299.654911, 97.241682, 0), V(0, 0, 1), 4.5), math.radians(12.75874), math.radians(77.24126)), False)
sketch8.addGeometry(Part.LineSegment(V(304.0438, 98.23549, 0), V(303.556146, 98.125067, 0)), False)
sketch8.addGeometry(Part.ArcOfCircle(Part.Circle(V(299.654911, 97.241682, 0), V(0, 0, 1), 4), math.radians(12.75874), math.radians(77.24126)), False)
sketch8.addGeometry(Part.LineSegment(V(295.753677, 98.125067, 0), V(295.266023, 98.23549, 0)), False)
sketch8.addGeometry(Part.ArcOfCircle(Part.Circle(V(299.654911, 97.241682, 0), V(0, 0, 1), 4.5), math.radians(102.75874), math.radians(167.24126)), False)
sketch8.addGeometry(Part.LineSegment(V(298.661103, 101.630571, 0), V(298.771527, 101.142916, 0)), False)
sketch8.addGeometry(Part.ArcOfCircle(Part.Circle(V(299.654911, 97.241682, 0), V(0, 0, 1), 4), math.radians(102.75874), math.radians(167.24126)), False)
sketch8.addConstraint(Sketcher.Constraint("Coincident", 0, 2, 1, 2))
sketch8.addConstraint(Sketcher.Constraint("Coincident", 1, 1, 2, 1))
sketch8.addConstraint(Sketcher.Constraint("Coincident", 2, 2, 3, 1))
sketch8.addConstraint(Sketcher.Constraint("Coincident", 3, 2, 0, 1))
sketch8.addConstraint(Sketcher.Constraint("Coincident", 4, 1, 5, 1))
sketch8.addConstraint(Sketcher.Constraint("Coincident", 5, 2, 6, 1))
sketch8.addConstraint(Sketcher.Constraint("Coincident", 6, 2, 7, 1))
sketch8.addConstraint(Sketcher.Constraint("Coincident", 7, 2, 4, 2))
sketch8.addConstraint(Sketcher.Constraint("Coincident", 8, 1, 9, 1))
sketch8.addConstraint(Sketcher.Constraint("Coincident", 9, 2, 10, 1))
sketch8.addConstraint(Sketcher.Constraint("Coincident", 10, 2, 11, 1))
sketch8.addConstraint(Sketcher.Constraint("Coincident", 11, 2, 8, 2))
sketch8.addConstraint(Sketcher.Constraint("Coincident", 12, 2, 13, 2))
sketch8.addConstraint(Sketcher.Constraint("Coincident", 13, 1, 14, 1))
sketch8.addConstraint(Sketcher.Constraint("Coincident", 14, 2, 15, 1))
sketch8.addConstraint(Sketcher.Constraint("Coincident", 15, 2, 12, 1))
sketch8.addConstraint(Sketcher.Constraint("Coincident", 16, 2, 17, 2))
sketch8.addConstraint(Sketcher.Constraint("Coincident", 17, 1, 18, 1))
sketch8.addConstraint(Sketcher.Constraint("Coincident", 18, 2, 19, 1))
sketch8.addConstraint(Sketcher.Constraint("Coincident", 19, 2, 16, 1))
sketch8.addConstraint(Sketcher.Constraint("Coincident", 20, 1, 21, 1))
sketch8.addConstraint(Sketcher.Constraint("Coincident", 21, 2, 22, 1))
sketch8.addConstraint(Sketcher.Constraint("Coincident", 22, 2, 23, 1))
sketch8.addConstraint(Sketcher.Constraint("Coincident", 23, 2, 20, 2))
sketch8.addConstraint(Sketcher.Constraint("Coincident", 24, 1, 25, 1))
sketch8.addConstraint(Sketcher.Constraint("Coincident", 25, 2, 26, 1))
sketch8.addConstraint(Sketcher.Constraint("Coincident", 26, 2, 27, 1))
sketch8.addConstraint(Sketcher.Constraint("Coincident", 27, 2, 24, 2))
sketch8.addConstraint(Sketcher.Constraint("Coincident", 28, 2, 29, 2))
sketch8.addConstraint(Sketcher.Constraint("Coincident", 29, 1, 30, 1))
sketch8.addConstraint(Sketcher.Constraint("Coincident", 30, 2, 31, 1))
sketch8.addConstraint(Sketcher.Constraint("Coincident", 31, 2, 28, 1))
sketch8.addConstraint(Sketcher.Constraint("Coincident", 32, 1, 33, 1))
sketch8.addConstraint(Sketcher.Constraint("Coincident", 33, 2, 34, 1))
sketch8.addConstraint(Sketcher.Constraint("Coincident", 34, 2, 35, 1))
sketch8.addConstraint(Sketcher.Constraint("Coincident", 35, 2, 32, 2))
sketch8.addConstraint(Sketcher.Constraint("Coincident", 36, 1, 37, 1))
sketch8.addConstraint(Sketcher.Constraint("Coincident", 37, 2, 38, 1))
sketch8.addConstraint(Sketcher.Constraint("Coincident", 38, 2, 39, 1))
sketch8.addConstraint(Sketcher.Constraint("Coincident", 39, 2, 36, 2))
sketch8.addConstraint(Sketcher.Constraint("Coincident", 40, 2, 41, 2))
sketch8.addConstraint(Sketcher.Constraint("Coincident", 41, 1, 42, 1))
sketch8.addConstraint(Sketcher.Constraint("Coincident", 42, 2, 43, 1))
sketch8.addConstraint(Sketcher.Constraint("Coincident", 43, 2, 40, 1))
sketch8.addConstraint(Sketcher.Constraint("Coincident", 44, 2, 45, 2))
sketch8.addConstraint(Sketcher.Constraint("Coincident", 45, 1, 46, 1))
sketch8.addConstraint(Sketcher.Constraint("Coincident", 46, 2, 47, 1))
sketch8.addConstraint(Sketcher.Constraint("Coincident", 47, 2, 44, 1))
sketch8.addConstraint(Sketcher.Constraint("Coincident", 3, 3, 1, 3))
sketch8.addConstraint(Sketcher.Constraint("Coincident", 4, 3, 1, 3))
sketch8.addConstraint(Sketcher.Constraint("Coincident", 6, 3, 1, 3))
sketch8.addConstraint(Sketcher.Constraint("Coincident", 8, 3, 1, 3))
sketch8.addConstraint(Sketcher.Constraint("Coincident", 10, 3, 1, 3))
sketch8.addConstraint(Sketcher.Constraint("Coincident", 13, 3, 1, 3))
sketch8.addConstraint(Sketcher.Constraint("Coincident", 15, 3, 1, 3))
sketch8.addConstraint(Sketcher.Constraint("Coincident", 19, 3, 17, 3))
sketch8.addConstraint(Sketcher.Constraint("Coincident", 20, 3, 17, 3))
sketch8.addConstraint(Sketcher.Constraint("Coincident", 22, 3, 17, 3))
sketch8.addConstraint(Sketcher.Constraint("Coincident", 24, 3, 17, 3))
sketch8.addConstraint(Sketcher.Constraint("Coincident", 26, 3, 17, 3))
sketch8.addConstraint(Sketcher.Constraint("Coincident", 29, 3, 17, 3))
sketch8.addConstraint(Sketcher.Constraint("Coincident", 31, 3, 17, 3))
sketch8.addConstraint(Sketcher.Constraint("Coincident", 34, 3, 32, 3))
sketch8.addConstraint(Sketcher.Constraint("Coincident", 36, 3, 32, 3))
sketch8.addConstraint(Sketcher.Constraint("Coincident", 38, 3, 32, 3))
sketch8.addConstraint(Sketcher.Constraint("Coincident", 41, 3, 32, 3))
sketch8.addConstraint(Sketcher.Constraint("Coincident", 43, 3, 32, 3))
sketch8.addConstraint(Sketcher.Constraint("Coincident", 45, 3, 32, 3))
sketch8.addConstraint(Sketcher.Constraint("Coincident", 47, 3, 32, 3))
sketch8.addConstraint(Sketcher.Constraint("Radius", 3, 4.0))
sketch8.addConstraint(Sketcher.Constraint("Radius", 6, 4.0))
sketch8.addConstraint(Sketcher.Constraint("Radius", 10, 4.0))
sketch8.addConstraint(Sketcher.Constraint("Radius", 15, 4.0))
sketch8.addConstraint(Sketcher.Constraint("Radius", 19, 4.0))
sketch8.addConstraint(Sketcher.Constraint("Radius", 22, 4.0))
sketch8.addConstraint(Sketcher.Constraint("Radius", 26, 4.0))
sketch8.addConstraint(Sketcher.Constraint("Radius", 31, 4.0))
sketch8.addConstraint(Sketcher.Constraint("Radius", 34, 4.0))
sketch8.addConstraint(Sketcher.Constraint("Radius", 38, 4.0))
sketch8.addConstraint(Sketcher.Constraint("Radius", 43, 4.0))
sketch8.addConstraint(Sketcher.Constraint("Radius", 47, 4.0))
sketch8.addConstraint(Sketcher.Constraint("Radius", 1, 4.5))
sketch8.addConstraint(Sketcher.Constraint("Radius", 4, 4.5))
sketch8.addConstraint(Sketcher.Constraint("Radius", 8, 4.5))
sketch8.addConstraint(Sketcher.Constraint("Radius", 13, 4.5))
sketch8.addConstraint(Sketcher.Constraint("Radius", 17, 4.5))
sketch8.addConstraint(Sketcher.Constraint("Radius", 20, 4.5))
sketch8.addConstraint(Sketcher.Constraint("Radius", 24, 4.5))
sketch8.addConstraint(Sketcher.Constraint("Radius", 29, 4.5))
sketch8.addConstraint(Sketcher.Constraint("Radius", 32, 4.5))
sketch8.addConstraint(Sketcher.Constraint("Radius", 36, 4.5))
sketch8.addConstraint(Sketcher.Constraint("Radius", 41, 4.5))
sketch8.addConstraint(Sketcher.Constraint("Radius", 45, 4.5))
sketch8.addConstraint(Sketcher.Constraint("DistanceX", -1, 1, 3, 2, 347.4179))
sketch8.addConstraint(Sketcher.Constraint("DistanceX", -1, 1, 14, 2, 347.4179))
sketch8.addConstraint(Sketcher.Constraint("DistanceX", -1, 1, 39, 2, 304.0438))
sketch8.addConstraint(Sketcher.Constraint("DistanceX", -1, 1, 41, 1, 304.0438))
sketch8.addConstraint(Sketcher.Constraint("Distance", 18, 0.50014))
sketch8.addConstraint(Sketcher.Constraint("DistanceX", -1, 1, 17, 3, 395.323541))
sketch8.addConstraint(Sketcher.Constraint("DistanceX", -1, 1, 32, 3, 299.654911))
sketch8.addConstraint(Sketcher.Constraint("DistanceY", -1, 1, 32, 3, 97.241682))
sketch8.addConstraint(Sketcher.Constraint("DistanceY", -1, 1, 1, 1, 14.869719))
sketch8.addConstraint(Sketcher.Constraint("DistanceX", -1, 1, 2, 2, 344.400051))
sketch8.addConstraint(Sketcher.Constraint("DistanceY", -1, 1, 2, 2, 14.980142))
sketch8.addConstraint(Sketcher.Constraint("DistanceX", -1, 1, 5, 2, 349.18467))
sketch8.addConstraint(Sketcher.Constraint("DistanceX", -1, 1, 6, 2, 352.20252))
sketch8.addConstraint(Sketcher.Constraint("DistanceY", -1, 1, 6, 2, 14.980142))
sketch8.addConstraint(Sketcher.Constraint("DistanceY", -1, 1, 7, 2, 14.869719))
sketch8.addConstraint(Sketcher.Constraint("DistanceX", -1, 1, 9, 2, 352.20252))
sketch8.addConstraint(Sketcher.Constraint("DistanceX", -1, 1, 10, 2, 349.18467))
sketch8.addConstraint(Sketcher.Constraint("DistanceX", -1, 1, 15, 2, 344.400051))
sketch8.addConstraint(Sketcher.Constraint("DistanceX", -1, 1, 17, 1, 390.934652))
sketch8.addConstraint(Sketcher.Constraint("DistanceY", -1, 1, 19, 2, 94.79159))
sketch8.addConstraint(Sketcher.Constraint("DistanceX", -1, 1, 20, 1, 396.317349))
sketch8.addConstraint(Sketcher.Constraint("DistanceY", -1, 1, 21, 2, 94.79159))
sketch8.addConstraint(Sketcher.Constraint("DistanceY", -1, 1, 22, 2, 97.809439))
sketch8.addConstraint(Sketcher.Constraint("DistanceX", -1, 1, 23, 2, 399.71243))
sketch8.addConstraint(Sketcher.Constraint("DistanceX", -1, 1, 24, 1, 399.71243))
sketch8.addConstraint(Sketcher.Constraint("DistanceY", -1, 1, 25, 2, 99.576209))
sketch8.addConstraint(Sketcher.Constraint("DistanceY", -1, 1, 26, 2, 102.594059))
sketch8.addConstraint(Sketcher.Constraint("DistanceX", -1, 1, 27, 2, 396.317349))
sketch8.addConstraint(Sketcher.Constraint("DistanceX", -1, 1, 28, 2, 390.934652))
sketch8.addConstraint(Sketcher.Constraint("DistanceY", -1, 1, 30, 2, 102.594059))
sketch8.addConstraint(Sketcher.Constraint("DistanceY", -1, 1, 31, 2, 99.576209))
sketch8.addConstraint(Sketcher.Constraint("DistanceX", -1, 1, 36, 1, 300.648719))
sketch8.addConstraint(Sketcher.Constraint("DistanceX", -1, 1, 40, 2, 300.648719))
sketch8.addConstraint(Sketcher.Constraint("DistanceY", -1, 1, 44, 2, 98.23549))
sketch8.addConstraint(Sketcher.Constraint("DistanceY", -1, 1, 45, 1, 101.630571))
sketch8.addConstraint(Sketcher.Constraint("DistanceY", -1, 1, 17, 3, 98.692824))
sketch8.addConstraint(Sketcher.Constraint("DistanceX", -1, 1, 0, 2, 347.307477))
sketch8.addConstraint(Sketcher.Constraint("DistanceX", -1, 1, 4, 1, 349.295093))
sketch8.addConstraint(Sketcher.Constraint("DistanceX", -1, 1, 8, 1, 352.690174))
sketch8.addConstraint(Sketcher.Constraint("DistanceX", -1, 1, 11, 2, 349.295093))
sketch8.addConstraint(Sketcher.Constraint("DistanceX", -1, 1, 12, 2, 343.912396))
sketch8.addConstraint(Sketcher.Constraint("DistanceX", -1, 1, 13, 1, 347.307477))
sketch8.addConstraint(Sketcher.Constraint("DistanceX", -1, 1, 16, 2, 394.329733))
sketch8.addConstraint(Sketcher.Constraint("DistanceX", -1, 1, 29, 1, 394.329733))
sketch8.addConstraint(Sketcher.Constraint("DistanceX", -1, 1, 32, 1, 295.266023))
sketch8.addConstraint(Sketcher.Constraint("DistanceX", -1, 1, 33, 2, 295.753677))
sketch8.addConstraint(Sketcher.Constraint("DistanceX", -1, 1, 34, 2, 298.771527))
sketch8.addConstraint(Sketcher.Constraint("DistanceX", -1, 1, 35, 2, 298.661103))
sketch8.addConstraint(Sketcher.Constraint("DistanceX", -1, 1, 37, 2, 300.538296))
sketch8.addConstraint(Sketcher.Constraint("DistanceX", -1, 1, 38, 2, 303.556146))
sketch8.addConstraint(Sketcher.Constraint("DistanceX", -1, 1, 42, 2, 303.556146))
sketch8.addConstraint(Sketcher.Constraint("DistanceX", -1, 1, 43, 2, 300.538296))
sketch8.addConstraint(Sketcher.Constraint("DistanceX", -1, 1, 46, 2, 298.771527))
sketch8.addConstraint(Sketcher.Constraint("DistanceX", -1, 1, 47, 2, 295.753677))
pad5 = body.newObject("PartDesign::Pad", "Pad004")
pad5.Profile = sketch8
pad5.Length = 3
pad5.Reversed = True

doc.recompute()
